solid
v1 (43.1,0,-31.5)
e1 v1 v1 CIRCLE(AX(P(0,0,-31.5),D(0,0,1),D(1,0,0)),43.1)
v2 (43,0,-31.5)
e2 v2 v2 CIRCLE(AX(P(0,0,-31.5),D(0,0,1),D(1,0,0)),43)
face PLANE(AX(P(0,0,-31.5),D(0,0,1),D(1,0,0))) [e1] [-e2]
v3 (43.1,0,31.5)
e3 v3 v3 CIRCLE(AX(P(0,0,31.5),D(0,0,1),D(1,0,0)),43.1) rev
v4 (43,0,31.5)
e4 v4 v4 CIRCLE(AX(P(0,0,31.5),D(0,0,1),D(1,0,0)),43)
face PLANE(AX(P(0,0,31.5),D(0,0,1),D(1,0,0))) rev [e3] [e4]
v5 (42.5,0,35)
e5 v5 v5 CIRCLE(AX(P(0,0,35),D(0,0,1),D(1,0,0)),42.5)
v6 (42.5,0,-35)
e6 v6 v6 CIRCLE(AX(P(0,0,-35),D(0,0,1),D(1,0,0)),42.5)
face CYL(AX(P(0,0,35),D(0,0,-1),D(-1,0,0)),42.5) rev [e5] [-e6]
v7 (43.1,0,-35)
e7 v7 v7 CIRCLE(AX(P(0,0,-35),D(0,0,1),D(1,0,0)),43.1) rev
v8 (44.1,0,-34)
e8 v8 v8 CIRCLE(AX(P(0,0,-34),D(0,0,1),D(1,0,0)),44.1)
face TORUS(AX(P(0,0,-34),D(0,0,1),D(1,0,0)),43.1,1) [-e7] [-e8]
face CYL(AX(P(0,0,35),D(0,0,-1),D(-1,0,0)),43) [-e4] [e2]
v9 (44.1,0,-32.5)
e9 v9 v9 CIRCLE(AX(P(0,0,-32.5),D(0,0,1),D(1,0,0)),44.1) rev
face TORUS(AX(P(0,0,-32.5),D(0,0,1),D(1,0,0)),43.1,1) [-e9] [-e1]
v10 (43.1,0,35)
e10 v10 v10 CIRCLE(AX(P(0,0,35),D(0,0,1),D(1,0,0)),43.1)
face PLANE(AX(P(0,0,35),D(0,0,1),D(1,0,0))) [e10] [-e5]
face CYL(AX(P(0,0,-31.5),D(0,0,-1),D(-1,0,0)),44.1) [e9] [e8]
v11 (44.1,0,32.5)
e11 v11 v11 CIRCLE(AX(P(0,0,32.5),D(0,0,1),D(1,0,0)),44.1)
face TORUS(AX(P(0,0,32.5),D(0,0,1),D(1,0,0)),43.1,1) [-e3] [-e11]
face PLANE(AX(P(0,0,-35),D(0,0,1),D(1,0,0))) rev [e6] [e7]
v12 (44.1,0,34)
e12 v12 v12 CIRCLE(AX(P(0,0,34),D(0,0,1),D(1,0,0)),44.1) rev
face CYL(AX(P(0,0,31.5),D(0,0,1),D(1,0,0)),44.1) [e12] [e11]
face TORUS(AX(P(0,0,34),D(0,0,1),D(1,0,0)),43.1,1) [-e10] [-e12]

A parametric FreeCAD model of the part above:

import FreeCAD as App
import Part
import Sketcher
Q = App.Units.Quantity


def edges_at(feature, points):
    """Names of the edges that pass closest to the given points."""
    edges = feature.Shape.Edges
    near = lambda p: min(range(len(edges)), key=lambda i: edges[i].distToShape(Part.Vertex(*p))[0])
    return sorted({f"Edge{near(p) + 1}" for p in points})

doc = App.newDocument("Part")
body = doc.addObject("PartDesign::Body", "Body")

# Sketch on XY plane
sketch1 = doc.addObject("Sketcher::SketchObject", "Sketch")
body.addObject(sketch1)
sketch1.AttachmentSupport = (doc.XY_Plane, [""])
sketch1.MapMode = "FlatFace"
sketch1.addGeometry(Part.Circle(App.Vector(0, 0, 0), App.Vector(0, 0, 1), 43), False)
sketch1.addGeometry(Part.Circle(App.Vector(0, 0, 0), App.Vector(0, 0, 1), 42), False)
sketch1.addConstraint(Sketcher.Constraint("Coincident", 0, 3, -1, 1))
sketch1.addConstraint(Sketcher.Constraint("Coincident", 1, 3, -1, 1))
sketch1.addConstraint(Sketcher.Constraint("Diameter", 0, Q("86 mm")))
sketch1.addConstraint(Sketcher.Constraint("Diameter", 1, Q("85 mm")))
pad1 = doc.addObject("PartDesign::Pad", "Pad")
body.addObject(pad1)
pad1.Profile = sketch1
pad1.Length = 70
pad1.Midplane = True

# Sketch on XY plane
sketch2 = doc.addObject("Sketcher::SketchObject", "Sketch001")
body.addObject(sketch2)
sketch2.AttachmentSupport = (doc.XY_Plane, [""])
sketch2.MapMode = "FlatFace"
sketch2.AttachmentOffset = App.Placement(App.Vector(0, 0, 31.5), App.Rotation())
sketch2.addGeometry(Part.Circle(App.Vector(0, 0, 0), App.Vector(0, 0, 1), 44), False)
sketch2.addGeometry(Part.Circle(App.Vector(0, 0, 0), App.Vector(0, 0, 1), 42), False)
sketch2.addConstraint(Sketcher.Constraint("Coincident", 0, 3, -1, 1))
sketch2.addConstraint(Sketcher.Constraint("Coincident", 1, 3, -1, 1))
sketch2.addConstraint(Sketcher.Constraint("Diameter", 1, Q("85 mm")))
sketch2.addConstraint(Sketcher.Constraint("Diameter", 0, Q("88.2 mm")))
pad2 = doc.addObject("PartDesign::Pad", "Pad001")
body.addObject(pad2)
pad2.Profile = sketch2
pad2.Length = 3.5
doc.recompute()

fillet = doc.addObject("PartDesign::Fillet", "Fillet")
body.addObject(fillet)
fillet.Base = (pad2, edges_at(pad2, [(-44.1, 0, 35), (-44.1, 0, 31.5)]))
fillet.Radius = 1
doc.recompute()

mirrored = doc.addObject("PartDesign::Mirrored", "Mirrored")
body.addObject(mirrored)
mirrored.Originals = [pad2]
mirrored.MirrorPlane = (doc.XY_Plane, [""])
body.Tip = mirrored
doc.recompute()

fillet2 = doc.addObject("PartDesign::Fillet", "Fillet001")
body.addObject(fillet2)
fillet2.Base = (mirrored, edges_at(mirrored, [(-44.1, 0, -35), (-44.1, 0, -31.5)]))
fillet2.Radius = 1

doc.recompute()
